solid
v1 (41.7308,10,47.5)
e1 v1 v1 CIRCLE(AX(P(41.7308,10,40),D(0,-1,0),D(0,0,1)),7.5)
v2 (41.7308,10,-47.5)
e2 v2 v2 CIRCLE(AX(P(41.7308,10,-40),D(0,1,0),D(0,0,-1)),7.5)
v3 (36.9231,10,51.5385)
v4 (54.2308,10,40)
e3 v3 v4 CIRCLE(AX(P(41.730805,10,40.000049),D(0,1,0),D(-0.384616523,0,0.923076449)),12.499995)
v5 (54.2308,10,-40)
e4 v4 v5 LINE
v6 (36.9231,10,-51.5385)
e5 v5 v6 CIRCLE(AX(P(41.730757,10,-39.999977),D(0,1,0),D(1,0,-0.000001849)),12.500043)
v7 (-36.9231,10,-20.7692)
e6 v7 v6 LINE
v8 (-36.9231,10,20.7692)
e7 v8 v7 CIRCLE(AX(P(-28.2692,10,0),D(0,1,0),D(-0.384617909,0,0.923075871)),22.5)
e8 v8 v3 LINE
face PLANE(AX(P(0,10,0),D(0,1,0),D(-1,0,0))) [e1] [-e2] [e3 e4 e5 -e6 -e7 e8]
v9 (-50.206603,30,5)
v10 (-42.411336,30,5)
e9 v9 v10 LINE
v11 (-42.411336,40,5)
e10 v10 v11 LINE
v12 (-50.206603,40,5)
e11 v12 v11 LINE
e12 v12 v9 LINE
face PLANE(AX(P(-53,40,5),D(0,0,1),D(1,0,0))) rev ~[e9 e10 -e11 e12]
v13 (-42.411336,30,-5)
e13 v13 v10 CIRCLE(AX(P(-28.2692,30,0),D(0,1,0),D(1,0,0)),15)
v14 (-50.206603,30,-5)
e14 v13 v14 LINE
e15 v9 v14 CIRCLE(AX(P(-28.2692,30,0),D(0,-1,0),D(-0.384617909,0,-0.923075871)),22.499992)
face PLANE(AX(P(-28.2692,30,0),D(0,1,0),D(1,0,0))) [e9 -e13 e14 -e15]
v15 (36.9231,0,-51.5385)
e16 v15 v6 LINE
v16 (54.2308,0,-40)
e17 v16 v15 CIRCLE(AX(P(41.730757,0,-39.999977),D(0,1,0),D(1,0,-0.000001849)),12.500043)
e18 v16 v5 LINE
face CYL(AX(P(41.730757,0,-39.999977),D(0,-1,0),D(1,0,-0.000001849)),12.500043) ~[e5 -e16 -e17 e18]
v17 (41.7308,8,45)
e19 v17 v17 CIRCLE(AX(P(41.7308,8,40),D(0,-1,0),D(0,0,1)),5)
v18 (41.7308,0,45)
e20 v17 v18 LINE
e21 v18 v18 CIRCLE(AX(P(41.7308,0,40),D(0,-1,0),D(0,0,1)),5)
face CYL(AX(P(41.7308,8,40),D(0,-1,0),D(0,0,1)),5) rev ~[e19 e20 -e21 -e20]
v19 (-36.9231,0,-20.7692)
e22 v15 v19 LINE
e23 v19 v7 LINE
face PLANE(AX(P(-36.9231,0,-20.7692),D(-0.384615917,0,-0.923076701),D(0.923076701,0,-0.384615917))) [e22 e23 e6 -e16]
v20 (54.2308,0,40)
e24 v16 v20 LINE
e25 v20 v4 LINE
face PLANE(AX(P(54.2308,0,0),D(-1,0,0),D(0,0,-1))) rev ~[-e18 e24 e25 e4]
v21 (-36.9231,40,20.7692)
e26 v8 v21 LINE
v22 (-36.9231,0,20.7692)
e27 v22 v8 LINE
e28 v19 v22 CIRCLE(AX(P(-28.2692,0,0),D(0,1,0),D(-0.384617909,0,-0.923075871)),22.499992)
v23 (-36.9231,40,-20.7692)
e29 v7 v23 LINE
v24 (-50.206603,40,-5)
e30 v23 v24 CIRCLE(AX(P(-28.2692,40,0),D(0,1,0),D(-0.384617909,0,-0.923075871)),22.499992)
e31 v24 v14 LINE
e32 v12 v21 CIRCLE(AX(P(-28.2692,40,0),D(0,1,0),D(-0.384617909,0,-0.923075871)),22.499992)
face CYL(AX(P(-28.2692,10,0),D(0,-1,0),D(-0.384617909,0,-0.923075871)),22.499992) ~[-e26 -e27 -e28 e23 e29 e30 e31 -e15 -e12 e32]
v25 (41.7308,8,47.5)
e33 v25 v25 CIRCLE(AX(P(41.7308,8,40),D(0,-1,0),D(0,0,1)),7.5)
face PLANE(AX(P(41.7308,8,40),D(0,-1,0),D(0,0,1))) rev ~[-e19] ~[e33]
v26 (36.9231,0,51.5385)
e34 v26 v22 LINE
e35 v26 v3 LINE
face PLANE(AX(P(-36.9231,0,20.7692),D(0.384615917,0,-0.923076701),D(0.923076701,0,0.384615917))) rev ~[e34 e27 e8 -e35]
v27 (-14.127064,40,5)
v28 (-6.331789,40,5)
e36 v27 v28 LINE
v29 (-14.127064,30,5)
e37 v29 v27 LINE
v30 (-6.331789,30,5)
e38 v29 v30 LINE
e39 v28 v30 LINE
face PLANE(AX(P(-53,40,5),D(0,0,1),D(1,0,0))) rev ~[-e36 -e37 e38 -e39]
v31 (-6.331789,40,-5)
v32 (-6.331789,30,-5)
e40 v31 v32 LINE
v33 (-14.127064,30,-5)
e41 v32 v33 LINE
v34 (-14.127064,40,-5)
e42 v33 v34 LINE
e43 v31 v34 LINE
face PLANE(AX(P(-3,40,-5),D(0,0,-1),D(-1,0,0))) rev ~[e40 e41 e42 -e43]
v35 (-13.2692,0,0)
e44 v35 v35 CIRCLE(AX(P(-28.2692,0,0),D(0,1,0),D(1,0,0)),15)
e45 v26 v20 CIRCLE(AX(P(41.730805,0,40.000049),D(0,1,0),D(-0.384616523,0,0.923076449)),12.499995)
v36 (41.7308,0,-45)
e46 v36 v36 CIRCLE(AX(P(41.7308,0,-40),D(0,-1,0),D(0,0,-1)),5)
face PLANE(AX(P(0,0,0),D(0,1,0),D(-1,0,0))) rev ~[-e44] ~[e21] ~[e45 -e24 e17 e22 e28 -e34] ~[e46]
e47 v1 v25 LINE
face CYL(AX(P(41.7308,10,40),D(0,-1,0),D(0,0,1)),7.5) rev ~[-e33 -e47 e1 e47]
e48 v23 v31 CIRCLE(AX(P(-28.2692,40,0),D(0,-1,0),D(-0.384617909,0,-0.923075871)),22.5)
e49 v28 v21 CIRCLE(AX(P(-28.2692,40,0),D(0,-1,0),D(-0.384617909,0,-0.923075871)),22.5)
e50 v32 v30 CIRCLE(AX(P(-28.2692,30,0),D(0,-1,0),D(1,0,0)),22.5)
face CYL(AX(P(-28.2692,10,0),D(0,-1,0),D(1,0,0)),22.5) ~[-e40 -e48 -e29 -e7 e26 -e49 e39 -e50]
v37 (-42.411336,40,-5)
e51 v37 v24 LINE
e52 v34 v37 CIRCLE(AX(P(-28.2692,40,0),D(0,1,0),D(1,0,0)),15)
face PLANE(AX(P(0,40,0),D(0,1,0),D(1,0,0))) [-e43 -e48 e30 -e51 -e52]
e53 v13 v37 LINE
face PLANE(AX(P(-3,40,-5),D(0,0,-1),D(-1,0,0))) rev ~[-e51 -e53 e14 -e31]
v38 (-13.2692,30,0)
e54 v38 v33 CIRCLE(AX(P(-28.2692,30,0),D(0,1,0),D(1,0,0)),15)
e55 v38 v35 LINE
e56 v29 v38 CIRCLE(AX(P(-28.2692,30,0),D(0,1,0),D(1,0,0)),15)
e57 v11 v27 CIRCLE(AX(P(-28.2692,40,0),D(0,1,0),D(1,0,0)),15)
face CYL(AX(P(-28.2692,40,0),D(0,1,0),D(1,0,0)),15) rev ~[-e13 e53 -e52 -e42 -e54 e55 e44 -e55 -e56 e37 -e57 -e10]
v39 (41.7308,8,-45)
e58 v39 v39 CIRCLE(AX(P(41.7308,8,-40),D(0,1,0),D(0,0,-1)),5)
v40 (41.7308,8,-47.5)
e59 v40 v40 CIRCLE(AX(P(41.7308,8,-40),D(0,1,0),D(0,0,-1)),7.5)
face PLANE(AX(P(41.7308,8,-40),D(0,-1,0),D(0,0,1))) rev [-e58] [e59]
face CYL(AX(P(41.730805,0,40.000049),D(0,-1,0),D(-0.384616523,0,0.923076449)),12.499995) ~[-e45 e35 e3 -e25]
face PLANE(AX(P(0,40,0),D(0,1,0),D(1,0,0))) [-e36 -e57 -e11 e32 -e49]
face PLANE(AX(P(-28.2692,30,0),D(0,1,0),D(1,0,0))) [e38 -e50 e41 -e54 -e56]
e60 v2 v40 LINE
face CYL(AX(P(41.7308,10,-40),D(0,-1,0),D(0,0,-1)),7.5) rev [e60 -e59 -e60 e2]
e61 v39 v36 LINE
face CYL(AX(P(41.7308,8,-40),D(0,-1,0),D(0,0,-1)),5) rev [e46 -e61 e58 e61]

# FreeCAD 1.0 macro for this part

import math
import FreeCAD as App
import Part
import Sketcher

V = App.Vector

doc = App.newDocument("Part")
body = doc.addObject("PartDesign::Body", "Body")

sketch1 = body.newObject("Sketcher::SketchObject", "Sketch")
sketch1.AttachmentSupport = (doc.getObject("XZ_Plane"), [""])
sketch1.MapMode = "FlatFace"
sketch1.addGeometry(Part.ArcOfCircle(Part.Circle(V(-28, 0, 0), V(0, 0, 1), 22), math.radians(113), math.radians(247)), False)
sketch1.addGeometry(Part.LineSegment(V(-37, 21, 0), V(37, 52, 0)), False)
sketch1.addGeometry(Part.ArcOfCircle(Part.Circle(V(42, 40, 0), V(0, 0, 1), 13), math.radians(0), math.radians(113)), False)
sketch1.addGeometry(Part.LineSegment(V(54, 40, 0), V(54, -40, 0)), False)
sketch1.addGeometry(Part.ArcOfCircle(Part.Circle(V(42, -40, 0), V(0, 0, 1), 12), math.radians(-113), math.radians(0)), False)
sketch1.addGeometry(Part.LineSegment(V(37, -52, 0), V(-37, -21, 0)), False)
sketch1.addConstraint(Sketcher.Constraint("Tangent", 0, 1, 1, 1))
sketch1.addConstraint(Sketcher.Constraint("Tangent", 1, 2, 2, 2))
sketch1.addConstraint(Sketcher.Constraint("Tangent", 2, 1, 3, 1))
sketch1.addConstraint(Sketcher.Constraint("Tangent", 3, 2, 4, 2))
sketch1.addConstraint(Sketcher.Constraint("Tangent", 4, 1, 5, 1))
sketch1.addConstraint(Sketcher.Constraint("Tangent", 5, 2, 0, 2))
sketch1.addConstraint(Sketcher.Constraint("Vertical", 3))
sketch1.addConstraint(Sketcher.Constraint("Equal", 2, 4))
sketch1.addConstraint(Sketcher.Constraint("Symmetric", 1, 2, 4, 1, -1))
sketch1.addConstraint(Sketcher.Constraint("Radius", 0, 22.5))
sketch1.addConstraint(Sketcher.Constraint("Radius", 2, 12.5))
sketch1.addConstraint(Sketcher.Constraint("DistanceY", 3, 2, 3, 1, 80.0))
sketch1.addConstraint(Sketcher.Constraint("Distance", 1, 80.0))
sketch1.addConstraint(Sketcher.Constraint("DistanceX", 0, 1, -1, 1, 36.923))
pad1 = body.newObject("PartDesign::Pad", "Pad")
pad1.Profile = sketch1
pad1.Length = 10
pad1.Reversed = True

sketch2 = body.newObject("Sketcher::SketchObject", "Sketch001")
sketch2.AttachmentSupport = (doc.getObject("XZ_Plane"), [""])
sketch2.MapMode = "FlatFace"
sketch2.AttachmentOffset = App.Placement(V(0, 0, -10), App.Rotation())
sketch2.addGeometry(Part.Circle(V(-28, 0, 0), V(0, 0, 1), 22), False)
sketch2.addConstraint(Sketcher.Constraint("PointOnObject", 0, 3, -1))
sketch2.addConstraint(Sketcher.Constraint("Diameter", 0, 45.0))
sketch2.addConstraint(Sketcher.Constraint("DistanceX", 0, 3, -1, 1, 28.2692))
pad2 = body.newObject("PartDesign::Pad", "Pad001")
pad2.Profile = sketch2
pad2.Length = 30
pad2.Reversed = True

sketch3 = body.newObject("Sketcher::SketchObject", "Sketch002")
sketch3.AttachmentSupport = (doc.getObject("XZ_Plane"), [""])
sketch3.MapMode = "FlatFace"
sketch3.AttachmentOffset = App.Placement(V(0, 0, -40), App.Rotation())
sketch3.addGeometry(Part.Circle(V(-28, 0, 0), V(0, 0, 1), 15), False)
sketch3.addConstraint(Sketcher.Constraint("PointOnObject", 0, 3, -1))
sketch3.addConstraint(Sketcher.Constraint("Diameter", 0, 30.0))
sketch3.addConstraint(Sketcher.Constraint("DistanceX", 0, 3, -1, 1, 28.2692))
pocket1 = body.newObject("PartDesign::Pocket", "Pocket")
pocket1.Profile = sketch3
pocket1.Type = "ThroughAll"
pocket1.Reversed = True

sketch4 = body.newObject("Sketcher::SketchObject", "Sketch003")
sketch4.AttachmentSupport = (doc.getObject("XZ_Plane"), [""])
sketch4.MapMode = "FlatFace"
sketch4.AttachmentOffset = App.Placement(V(0, 0, -40), App.Rotation())
sketch4.addGeometry(Part.LineSegment(V(-53, 5, 0), V(-3, 5, 0)), False)
sketch4.addGeometry(Part.LineSegment(V(-3, 5, 0), V(-3, -5, 0)), False)
sketch4.addGeometry(Part.LineSegment(V(-3, -5, 0), V(-53, -5, 0)), False)
sketch4.addGeometry(Part.LineSegment(V(-53, -5, 0), V(-53, 5, 0)), False)
sketch4.addConstraint(Sketcher.Constraint("Coincident", 0, 2, 1, 1))
sketch4.addConstraint(Sketcher.Constraint("Coincident", 1, 2, 2, 1))
sketch4.addConstraint(Sketcher.Constraint("Coincident", 2, 2, 3, 1))
sketch4.addConstraint(Sketcher.Constraint("Coincident", 3, 2, 0, 1))
sketch4.addConstraint(Sketcher.Constraint("Horizontal", 0))
sketch4.addConstraint(Sketcher.Constraint("Vertical", 1))
sketch4.addConstraint(Sketcher.Constraint("Horizontal", 2))
sketch4.addConstraint(Sketcher.Constraint("Vertical", 3))
sketch4.addConstraint(Sketcher.Constraint("DistanceX", 0, 1, 0, 2, 50.0))
sketch4.addConstraint(Sketcher.Constraint("DistanceY", 1, 2, 1, 1, 10.0))
sketch4.addConstraint(Sketcher.Constraint("DistanceX", 0, 2, -1, 1, 3.0))
sketch4.addConstraint(Sketcher.Constraint("DistanceY", -1, 1, 0, 2, 5.0))
pocket2 = body.newObject("PartDesign::Pocket", "Pocket001")
pocket2.Profile = sketch4
pocket2.Length = 10
pocket2.Reversed = True

sketch5 = body.newObject("Sketcher::SketchObject", "Sketch004")
sketch5.AttachmentSupport = (doc.getObject("XZ_Plane"), [""])
sketch5.MapMode = "FlatFace"
sketch5.AttachmentOffset = App.Placement(V(0, 0, -10), App.Rotation())
sketch5.addGeometry(Part.Circle(V(42, 40, 0), V(0, 0, 1), 5), False)
sketch5.addConstraint(Sketcher.Constraint("Diameter", 0, 10.0))
sketch5.addConstraint(Sketcher.Constraint("DistanceY", -1, 1, 0, 3, 40.0))
sketch5.addConstraint(Sketcher.Constraint("DistanceX", -1, 1, 0, 3, 41.7308))
doc.recompute()
hole = body.newObject("PartDesign::Hole", "Hole")
hole.Profile = sketch5
hole.ThreadType = "None"
hole.Diameter = 10
hole.DepthType = "ThroughAll"
hole.HoleCutType = "Counterbore"
hole.HoleCutDiameter = 15
hole.HoleCutDepth = 2
hole.Reversed = True
doc.recompute()

mirrored = body.newObject("PartDesign::Mirrored", "Mirrored")
mirrored.Originals = [hole]
mirrored.MirrorPlane = (doc.getObject("XY_Plane"), [""])
body.Tip = mirrored

doc.recompute()
